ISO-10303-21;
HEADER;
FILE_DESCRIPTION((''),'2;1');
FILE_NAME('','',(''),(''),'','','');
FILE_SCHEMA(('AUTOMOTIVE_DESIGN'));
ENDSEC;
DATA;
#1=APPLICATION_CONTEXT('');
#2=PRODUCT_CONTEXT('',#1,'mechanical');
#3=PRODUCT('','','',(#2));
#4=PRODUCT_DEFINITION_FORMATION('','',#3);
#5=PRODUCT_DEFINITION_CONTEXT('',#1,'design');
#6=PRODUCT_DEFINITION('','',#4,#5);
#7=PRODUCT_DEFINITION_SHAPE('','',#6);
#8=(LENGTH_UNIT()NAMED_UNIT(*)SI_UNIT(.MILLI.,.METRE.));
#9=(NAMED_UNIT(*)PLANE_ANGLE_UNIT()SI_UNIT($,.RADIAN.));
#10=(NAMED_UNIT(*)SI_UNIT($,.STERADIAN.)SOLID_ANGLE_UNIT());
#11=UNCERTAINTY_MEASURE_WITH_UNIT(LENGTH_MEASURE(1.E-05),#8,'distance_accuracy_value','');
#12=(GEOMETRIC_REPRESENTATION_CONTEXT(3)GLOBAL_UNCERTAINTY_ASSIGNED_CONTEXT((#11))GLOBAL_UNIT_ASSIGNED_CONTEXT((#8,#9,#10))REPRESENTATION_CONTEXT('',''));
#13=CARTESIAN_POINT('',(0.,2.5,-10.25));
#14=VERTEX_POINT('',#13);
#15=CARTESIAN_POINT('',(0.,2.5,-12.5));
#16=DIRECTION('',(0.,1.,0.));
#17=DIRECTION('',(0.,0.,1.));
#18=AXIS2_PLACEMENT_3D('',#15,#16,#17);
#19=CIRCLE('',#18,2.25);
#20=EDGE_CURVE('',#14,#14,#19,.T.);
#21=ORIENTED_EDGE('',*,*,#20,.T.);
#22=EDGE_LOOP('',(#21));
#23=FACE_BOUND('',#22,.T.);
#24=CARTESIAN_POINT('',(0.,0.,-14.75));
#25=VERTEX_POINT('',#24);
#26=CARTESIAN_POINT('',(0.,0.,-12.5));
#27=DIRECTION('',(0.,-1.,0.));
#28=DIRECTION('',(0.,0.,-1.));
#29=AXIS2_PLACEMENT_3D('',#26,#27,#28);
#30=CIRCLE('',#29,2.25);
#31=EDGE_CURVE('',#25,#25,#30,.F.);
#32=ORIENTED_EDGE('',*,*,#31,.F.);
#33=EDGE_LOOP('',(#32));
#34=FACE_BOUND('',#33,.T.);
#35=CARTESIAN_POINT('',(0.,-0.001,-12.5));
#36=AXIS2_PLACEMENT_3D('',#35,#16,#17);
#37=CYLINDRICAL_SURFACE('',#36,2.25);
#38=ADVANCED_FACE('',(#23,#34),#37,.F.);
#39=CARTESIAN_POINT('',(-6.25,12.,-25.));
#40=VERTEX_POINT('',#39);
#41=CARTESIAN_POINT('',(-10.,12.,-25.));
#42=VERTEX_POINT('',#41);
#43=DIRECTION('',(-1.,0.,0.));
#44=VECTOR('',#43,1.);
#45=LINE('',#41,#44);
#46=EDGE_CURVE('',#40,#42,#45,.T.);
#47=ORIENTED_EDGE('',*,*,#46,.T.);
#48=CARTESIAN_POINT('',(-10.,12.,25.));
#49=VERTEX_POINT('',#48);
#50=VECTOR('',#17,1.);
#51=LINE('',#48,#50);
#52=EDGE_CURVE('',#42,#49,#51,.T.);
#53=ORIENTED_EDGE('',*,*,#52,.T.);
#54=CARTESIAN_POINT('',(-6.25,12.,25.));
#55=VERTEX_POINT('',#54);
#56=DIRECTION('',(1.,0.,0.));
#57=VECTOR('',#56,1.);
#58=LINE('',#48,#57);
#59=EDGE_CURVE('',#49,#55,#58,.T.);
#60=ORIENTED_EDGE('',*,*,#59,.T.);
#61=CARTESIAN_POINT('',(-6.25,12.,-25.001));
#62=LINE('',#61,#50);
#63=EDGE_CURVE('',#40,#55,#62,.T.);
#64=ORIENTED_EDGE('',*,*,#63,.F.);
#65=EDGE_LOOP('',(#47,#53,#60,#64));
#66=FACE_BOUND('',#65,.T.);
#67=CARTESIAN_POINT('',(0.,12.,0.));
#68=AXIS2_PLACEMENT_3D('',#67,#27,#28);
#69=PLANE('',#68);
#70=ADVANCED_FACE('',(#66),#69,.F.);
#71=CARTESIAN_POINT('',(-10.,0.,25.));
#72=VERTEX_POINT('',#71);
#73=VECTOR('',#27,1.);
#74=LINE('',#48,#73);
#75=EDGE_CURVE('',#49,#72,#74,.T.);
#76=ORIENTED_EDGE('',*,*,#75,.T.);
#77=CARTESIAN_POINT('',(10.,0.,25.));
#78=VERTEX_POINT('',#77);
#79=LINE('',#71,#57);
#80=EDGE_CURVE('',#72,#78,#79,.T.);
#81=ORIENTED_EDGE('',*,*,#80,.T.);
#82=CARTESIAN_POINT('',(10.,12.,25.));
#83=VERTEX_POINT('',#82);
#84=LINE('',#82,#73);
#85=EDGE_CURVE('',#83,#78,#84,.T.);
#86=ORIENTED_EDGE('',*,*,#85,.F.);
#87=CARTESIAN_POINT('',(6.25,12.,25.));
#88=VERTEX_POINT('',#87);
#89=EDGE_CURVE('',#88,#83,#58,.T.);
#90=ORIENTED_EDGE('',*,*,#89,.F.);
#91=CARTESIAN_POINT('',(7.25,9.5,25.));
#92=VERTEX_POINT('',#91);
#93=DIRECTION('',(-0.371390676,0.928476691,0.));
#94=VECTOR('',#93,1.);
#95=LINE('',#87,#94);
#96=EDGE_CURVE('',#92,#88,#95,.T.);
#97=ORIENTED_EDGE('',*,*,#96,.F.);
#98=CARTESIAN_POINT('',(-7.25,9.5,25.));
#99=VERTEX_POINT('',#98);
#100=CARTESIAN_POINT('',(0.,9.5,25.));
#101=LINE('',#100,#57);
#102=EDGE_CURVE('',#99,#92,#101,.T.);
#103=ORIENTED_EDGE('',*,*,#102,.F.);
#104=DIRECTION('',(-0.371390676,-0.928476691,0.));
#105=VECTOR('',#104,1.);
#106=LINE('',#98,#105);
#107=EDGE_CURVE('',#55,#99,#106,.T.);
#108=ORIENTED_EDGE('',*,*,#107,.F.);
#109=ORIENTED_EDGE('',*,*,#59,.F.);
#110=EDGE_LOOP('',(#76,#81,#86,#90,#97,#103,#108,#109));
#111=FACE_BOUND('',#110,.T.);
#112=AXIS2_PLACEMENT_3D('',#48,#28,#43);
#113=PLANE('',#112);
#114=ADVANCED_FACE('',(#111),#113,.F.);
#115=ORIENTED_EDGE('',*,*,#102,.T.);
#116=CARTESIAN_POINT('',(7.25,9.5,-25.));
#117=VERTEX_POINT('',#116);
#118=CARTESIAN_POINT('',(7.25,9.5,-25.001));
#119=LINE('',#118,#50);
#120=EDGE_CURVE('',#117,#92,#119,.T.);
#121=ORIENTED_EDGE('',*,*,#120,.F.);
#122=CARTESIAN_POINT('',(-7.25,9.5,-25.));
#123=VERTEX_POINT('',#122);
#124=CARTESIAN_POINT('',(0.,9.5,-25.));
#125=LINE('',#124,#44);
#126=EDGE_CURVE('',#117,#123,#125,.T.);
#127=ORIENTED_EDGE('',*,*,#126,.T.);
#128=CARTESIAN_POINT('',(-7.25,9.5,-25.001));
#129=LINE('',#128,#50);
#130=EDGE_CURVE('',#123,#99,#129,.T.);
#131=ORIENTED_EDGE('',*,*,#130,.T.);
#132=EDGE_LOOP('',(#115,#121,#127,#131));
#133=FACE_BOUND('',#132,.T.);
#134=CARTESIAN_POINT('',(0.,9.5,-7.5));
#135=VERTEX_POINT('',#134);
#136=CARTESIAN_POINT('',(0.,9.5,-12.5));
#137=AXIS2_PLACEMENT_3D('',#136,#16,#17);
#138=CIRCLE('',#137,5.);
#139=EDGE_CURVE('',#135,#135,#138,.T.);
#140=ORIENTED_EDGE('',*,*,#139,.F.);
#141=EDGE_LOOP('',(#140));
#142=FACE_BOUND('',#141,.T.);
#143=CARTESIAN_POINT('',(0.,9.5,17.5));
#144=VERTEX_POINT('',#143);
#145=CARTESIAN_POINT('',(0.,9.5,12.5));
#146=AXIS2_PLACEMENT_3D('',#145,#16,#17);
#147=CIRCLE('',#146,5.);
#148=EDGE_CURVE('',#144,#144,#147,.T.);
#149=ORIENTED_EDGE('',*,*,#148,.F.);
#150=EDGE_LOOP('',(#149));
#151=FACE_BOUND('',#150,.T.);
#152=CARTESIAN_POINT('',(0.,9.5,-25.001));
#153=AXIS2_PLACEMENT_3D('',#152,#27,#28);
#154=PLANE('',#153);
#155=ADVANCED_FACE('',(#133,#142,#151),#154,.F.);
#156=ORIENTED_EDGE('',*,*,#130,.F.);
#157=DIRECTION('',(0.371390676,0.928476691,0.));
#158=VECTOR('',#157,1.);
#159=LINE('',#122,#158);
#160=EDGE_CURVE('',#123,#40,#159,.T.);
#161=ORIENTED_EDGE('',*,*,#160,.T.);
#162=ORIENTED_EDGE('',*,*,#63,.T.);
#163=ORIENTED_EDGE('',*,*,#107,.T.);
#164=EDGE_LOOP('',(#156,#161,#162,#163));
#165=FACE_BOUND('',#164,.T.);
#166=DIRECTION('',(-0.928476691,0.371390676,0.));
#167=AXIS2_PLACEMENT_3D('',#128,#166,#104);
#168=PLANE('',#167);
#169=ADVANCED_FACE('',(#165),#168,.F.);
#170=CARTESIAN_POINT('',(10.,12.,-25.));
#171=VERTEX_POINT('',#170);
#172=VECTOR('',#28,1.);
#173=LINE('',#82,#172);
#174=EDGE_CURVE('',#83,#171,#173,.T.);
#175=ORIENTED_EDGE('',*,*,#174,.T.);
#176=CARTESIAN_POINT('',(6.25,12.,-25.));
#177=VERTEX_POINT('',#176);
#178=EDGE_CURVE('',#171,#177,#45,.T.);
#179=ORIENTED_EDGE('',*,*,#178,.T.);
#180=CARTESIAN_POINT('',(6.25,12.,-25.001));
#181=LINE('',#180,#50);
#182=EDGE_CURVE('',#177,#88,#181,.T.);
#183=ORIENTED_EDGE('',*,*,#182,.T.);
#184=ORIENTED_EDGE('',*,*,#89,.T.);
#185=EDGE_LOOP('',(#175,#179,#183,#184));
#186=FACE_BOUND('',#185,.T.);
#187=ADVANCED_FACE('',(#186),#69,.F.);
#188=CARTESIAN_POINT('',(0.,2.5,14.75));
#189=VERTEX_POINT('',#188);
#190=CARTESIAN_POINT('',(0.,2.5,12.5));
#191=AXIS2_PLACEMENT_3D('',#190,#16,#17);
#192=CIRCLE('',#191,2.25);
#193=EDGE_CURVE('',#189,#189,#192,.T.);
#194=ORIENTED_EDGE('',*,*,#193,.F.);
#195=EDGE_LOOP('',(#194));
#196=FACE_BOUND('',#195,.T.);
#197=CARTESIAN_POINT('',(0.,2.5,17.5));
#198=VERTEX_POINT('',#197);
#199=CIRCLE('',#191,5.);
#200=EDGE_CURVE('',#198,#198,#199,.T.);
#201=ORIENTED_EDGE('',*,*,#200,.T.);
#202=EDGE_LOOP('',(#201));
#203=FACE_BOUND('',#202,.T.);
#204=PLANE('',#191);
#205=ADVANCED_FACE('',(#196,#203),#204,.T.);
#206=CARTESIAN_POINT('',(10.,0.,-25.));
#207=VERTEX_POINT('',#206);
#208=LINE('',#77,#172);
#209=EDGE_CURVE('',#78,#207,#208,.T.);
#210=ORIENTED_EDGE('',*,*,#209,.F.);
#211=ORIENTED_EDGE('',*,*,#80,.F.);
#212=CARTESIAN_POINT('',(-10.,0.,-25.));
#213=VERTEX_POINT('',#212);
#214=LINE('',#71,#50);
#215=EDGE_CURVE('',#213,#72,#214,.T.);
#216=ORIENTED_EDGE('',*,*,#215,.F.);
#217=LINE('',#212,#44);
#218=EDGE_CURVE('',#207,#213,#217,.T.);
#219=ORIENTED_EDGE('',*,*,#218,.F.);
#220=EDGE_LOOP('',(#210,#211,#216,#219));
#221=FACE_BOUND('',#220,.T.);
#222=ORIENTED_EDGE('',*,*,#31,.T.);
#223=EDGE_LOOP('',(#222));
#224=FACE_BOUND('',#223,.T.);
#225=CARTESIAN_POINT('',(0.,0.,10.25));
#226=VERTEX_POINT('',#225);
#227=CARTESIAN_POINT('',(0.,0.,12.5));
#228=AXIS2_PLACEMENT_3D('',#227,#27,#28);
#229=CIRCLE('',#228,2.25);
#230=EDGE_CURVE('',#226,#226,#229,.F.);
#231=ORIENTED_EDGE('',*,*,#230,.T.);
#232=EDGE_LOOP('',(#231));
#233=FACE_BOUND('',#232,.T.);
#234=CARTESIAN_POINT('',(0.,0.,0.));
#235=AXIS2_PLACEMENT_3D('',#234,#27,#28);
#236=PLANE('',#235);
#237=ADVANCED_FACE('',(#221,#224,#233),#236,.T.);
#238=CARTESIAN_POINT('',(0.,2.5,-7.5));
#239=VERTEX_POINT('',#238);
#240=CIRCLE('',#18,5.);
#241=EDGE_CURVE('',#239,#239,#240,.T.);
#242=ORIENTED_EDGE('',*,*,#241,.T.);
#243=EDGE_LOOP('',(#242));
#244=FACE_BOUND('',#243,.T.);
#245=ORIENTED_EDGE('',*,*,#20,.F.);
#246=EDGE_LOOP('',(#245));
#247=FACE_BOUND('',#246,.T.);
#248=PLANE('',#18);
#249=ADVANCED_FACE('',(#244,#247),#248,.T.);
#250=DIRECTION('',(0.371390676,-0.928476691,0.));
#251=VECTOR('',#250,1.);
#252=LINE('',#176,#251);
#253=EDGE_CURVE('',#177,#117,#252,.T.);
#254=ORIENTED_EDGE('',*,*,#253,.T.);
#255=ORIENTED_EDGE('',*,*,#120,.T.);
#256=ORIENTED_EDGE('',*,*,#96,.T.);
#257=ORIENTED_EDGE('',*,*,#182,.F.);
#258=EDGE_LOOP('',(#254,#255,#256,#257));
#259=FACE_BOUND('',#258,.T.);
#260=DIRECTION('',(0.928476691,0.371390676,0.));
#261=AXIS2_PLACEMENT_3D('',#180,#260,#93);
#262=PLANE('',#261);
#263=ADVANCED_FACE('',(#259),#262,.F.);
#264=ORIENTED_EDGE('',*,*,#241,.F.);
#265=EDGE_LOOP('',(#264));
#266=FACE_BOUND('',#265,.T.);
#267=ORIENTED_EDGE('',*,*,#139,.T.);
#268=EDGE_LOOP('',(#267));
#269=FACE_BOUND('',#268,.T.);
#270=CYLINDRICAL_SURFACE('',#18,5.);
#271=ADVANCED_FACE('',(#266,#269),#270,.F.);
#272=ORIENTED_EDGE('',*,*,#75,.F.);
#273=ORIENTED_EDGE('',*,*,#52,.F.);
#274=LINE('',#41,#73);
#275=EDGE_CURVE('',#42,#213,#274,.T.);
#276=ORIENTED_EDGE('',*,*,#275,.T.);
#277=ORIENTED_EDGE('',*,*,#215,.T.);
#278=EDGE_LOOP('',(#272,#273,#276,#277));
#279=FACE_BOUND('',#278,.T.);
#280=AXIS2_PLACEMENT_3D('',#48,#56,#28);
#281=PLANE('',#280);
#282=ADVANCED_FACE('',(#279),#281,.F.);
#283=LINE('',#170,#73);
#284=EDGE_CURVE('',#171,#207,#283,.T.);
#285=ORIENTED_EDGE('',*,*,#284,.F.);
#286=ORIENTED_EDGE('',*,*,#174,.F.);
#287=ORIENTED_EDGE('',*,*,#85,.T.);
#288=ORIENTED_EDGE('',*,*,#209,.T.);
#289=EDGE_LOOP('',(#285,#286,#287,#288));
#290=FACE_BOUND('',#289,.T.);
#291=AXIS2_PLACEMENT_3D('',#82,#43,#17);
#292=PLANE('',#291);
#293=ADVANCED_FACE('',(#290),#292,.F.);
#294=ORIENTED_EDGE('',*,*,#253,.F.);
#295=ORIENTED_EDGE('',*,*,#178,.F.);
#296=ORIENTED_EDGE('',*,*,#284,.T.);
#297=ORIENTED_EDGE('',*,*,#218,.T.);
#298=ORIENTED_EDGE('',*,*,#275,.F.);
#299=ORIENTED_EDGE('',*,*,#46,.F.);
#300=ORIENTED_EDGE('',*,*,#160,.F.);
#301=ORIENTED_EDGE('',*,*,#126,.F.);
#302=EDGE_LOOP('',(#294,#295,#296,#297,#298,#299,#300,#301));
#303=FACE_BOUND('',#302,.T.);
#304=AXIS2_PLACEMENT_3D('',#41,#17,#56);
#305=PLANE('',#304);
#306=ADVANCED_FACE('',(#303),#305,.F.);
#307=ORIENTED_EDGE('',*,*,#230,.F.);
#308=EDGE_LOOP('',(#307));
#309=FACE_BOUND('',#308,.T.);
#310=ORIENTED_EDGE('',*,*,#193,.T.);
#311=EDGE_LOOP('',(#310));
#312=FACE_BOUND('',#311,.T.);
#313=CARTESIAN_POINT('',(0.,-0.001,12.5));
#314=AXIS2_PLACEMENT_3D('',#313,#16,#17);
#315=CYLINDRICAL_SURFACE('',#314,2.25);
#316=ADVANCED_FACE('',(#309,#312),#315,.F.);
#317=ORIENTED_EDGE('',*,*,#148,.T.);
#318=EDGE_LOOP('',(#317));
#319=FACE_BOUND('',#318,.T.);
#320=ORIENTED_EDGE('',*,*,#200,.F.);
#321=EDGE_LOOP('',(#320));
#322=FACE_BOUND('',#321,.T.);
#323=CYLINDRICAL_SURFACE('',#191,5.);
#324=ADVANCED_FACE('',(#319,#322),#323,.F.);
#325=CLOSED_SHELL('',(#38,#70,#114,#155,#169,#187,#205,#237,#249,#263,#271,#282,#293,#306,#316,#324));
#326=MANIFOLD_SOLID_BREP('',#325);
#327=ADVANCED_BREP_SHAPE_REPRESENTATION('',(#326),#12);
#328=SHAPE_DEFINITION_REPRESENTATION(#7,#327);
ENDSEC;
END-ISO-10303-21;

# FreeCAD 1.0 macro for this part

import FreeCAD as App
import Part
import Sketcher
from FreeCAD import Vector
Q = App.Units.Quantity


def add_polygon(sketch, points):
    """Adds a closed chain of lines whose ends are joined by coincident constraints."""
    first, n = sketch.GeometryCount, len(points)
    for a, b in zip(points, points[1:] + points[:1]):
        sketch.addGeometry(Part.LineSegment(App.Vector(*a, 0), App.Vector(*b, 0)), False)
    for i in range(n):
        sketch.addConstraint(Sketcher.Constraint("Coincident", first + i, 2, first + (i + 1) % n, 1))

doc = App.newDocument("Part")
body = doc.addObject("PartDesign::Body", "Body")

# Sketch on XZ plane
sketch1 = body.newObject("Sketcher::SketchObject", "Sketch")
sketch1.AttachmentSupport = (doc.getObject("XZ_Plane"), [""])
sketch1.MapMode = "FlatFace"
add_polygon(sketch1, [(-10, -25), (-10, 25), (10, 25), (10, -25)])  # lines 0-3
sketch1.addConstraint(Sketcher.Constraint("Vertical", 0))
sketch1.addConstraint(Sketcher.Constraint("Horizontal", 1))
sketch1.addConstraint(Sketcher.Constraint("Vertical", 2))
sketch1.addConstraint(Sketcher.Constraint("Horizontal", 3))
sketch1.addConstraint(Sketcher.Constraint("Symmetric", 0, 2, 2, 2, -1, 1))
sketch1.addConstraint(Sketcher.Constraint("DistanceX", 1, 1, 1, 2, Q("20 mm")))
sketch1.addConstraint(Sketcher.Constraint("DistanceY", 0, 1, 0, 2, Q("50 mm")))
pad1 = body.newObject("PartDesign::Pad", "Pad")
pad1.Profile = sketch1
pad1.Length = 12
pad1.Reversed = True

# Sketch on XY plane
sketch2 = body.newObject("Sketcher::SketchObject", "Sketch001")
sketch2.AttachmentSupport = (doc.getObject("XY_Plane"), [""])
sketch2.MapMode = "FlatFace"
sketch2.AttachmentOffset = App.Placement(Vector(0, 0, 25), App.Rotation())
add_polygon(sketch2, [(7.2, 9.5), (6.2, 12), (-6.2, 12), (-7.2, 9.5)])  # lines 0-3
sketch2.addConstraint(Sketcher.Constraint("Horizontal", 1))
sketch2.addConstraint(Sketcher.Constraint("Horizontal", 3))
sketch2.addConstraint(Sketcher.Constraint("Equal", 0, 2))
sketch2.addConstraint(Sketcher.Constraint("DistanceX", 1, 2, 1, 1, Q("12.5 mm")))
sketch2.addConstraint(Sketcher.Constraint("DistanceX", 3, 1, 3, 2, Q("14.5 mm")))
sketch2.addConstraint(Sketcher.Constraint("DistanceY", -1, 1, 0, 2, Q("12 mm")))
sketch2.addConstraint(Sketcher.Constraint("DistanceY", -1, 1, 2, 2, Q("9.5 mm")))
sketch2.addConstraint(Sketcher.Constraint("DistanceX", -1, 1, 0, 2, Q("6.25 mm")))
pocket1 = body.newObject("PartDesign::Pocket", "Pocket")
pocket1.Profile = sketch2
pocket1.Type = "UpToFirst"

# Sketch on XZ plane
sketch3 = body.newObject("Sketcher::SketchObject", "Sketch002")
sketch3.AttachmentSupport = (doc.getObject("XZ_Plane"), [""])
sketch3.MapMode = "FlatFace"
sketch3.AttachmentOffset = App.Placement(Vector(0, 0, -9.5), App.Rotation())
sketch3.addGeometry(Part.Circle(Vector(0, -12, 0), Vector(0, 0, 1), 5), False)
sketch3.addGeometry(Part.Circle(Vector(0, 12, 0), Vector(0, 0, 1), 5), False)
sketch3.addConstraint(Sketcher.Constraint("Equal", 0, 1))
sketch3.addConstraint(Sketcher.Constraint("Symmetric", 0, 3, 1, 3, -1, 1))
sketch3.addConstraint(Sketcher.Constraint("PointOnObject", 0, 3, -2))
sketch3.addConstraint(Sketcher.Constraint("Diameter", 0, Q("10 mm")))
sketch3.addConstraint(Sketcher.Constraint("DistanceY", 0, 3, 1, 3, Q("25 mm")))
pocket2 = body.newObject("PartDesign::Pocket", "Pocket001")
pocket2.Profile = sketch3
pocket2.Length = 7
pocket2.Reversed = True

# Sketch on XZ plane
sketch4 = body.newObject("Sketcher::SketchObject", "Sketch003")
sketch4.AttachmentSupport = (doc.getObject("XZ_Plane"), [""])
sketch4.MapMode = "FlatFace"
sketch4.AttachmentOffset = App.Placement(Vector(0, 0, -2.5), App.Rotation())
sketch4.addGeometry(Part.Circle(Vector(0, -12.5, 0), Vector(0, 0, 1), 2.2), False)
sketch4.addConstraint(Sketcher.Constraint("PointOnObject", 0, 3, -2))
sketch4.addConstraint(Sketcher.Constraint("Diameter", 0, Q("4.5 mm")))
sketch4.addConstraint(Sketcher.Constraint("DistanceY", 0, 3, -1, 1, Q("12.5 mm")))
pocket3 = body.newObject("PartDesign::Pocket", "Pocket002")
pocket3.Profile = sketch4
pocket3.Type = "UpToFirst"
pocket3.Reversed = True

# Sketch on XZ plane
sketch5 = body.newObject("Sketcher::SketchObject", "Sketch004")
sketch5.AttachmentSupport = (doc.getObject("XZ_Plane"), [""])
sketch5.MapMode = "FlatFace"
sketch5.AttachmentOffset = App.Placement(Vector(0, 0, -2.5), App.Rotation())
sketch5.addGeometry(Part.Circle(Vector(0, 12.5, 0), Vector(0, 0, 1), 2.2), False)
sketch5.addConstraint(Sketcher.Constraint("PointOnObject", 0, 3, -2))
sketch5.addConstraint(Sketcher.Constraint("Diameter", 0, Q("4.5 mm")))
sketch5.addConstraint(Sketcher.Constraint("DistanceY", -1, 1, 0, 3, Q("12.5 mm")))
pocket4 = body.newObject("PartDesign::Pocket", "Pocket003")
pocket4.Profile = sketch5
pocket4.Type = "UpToFirst"
pocket4.Reversed = True

doc.recompute()
